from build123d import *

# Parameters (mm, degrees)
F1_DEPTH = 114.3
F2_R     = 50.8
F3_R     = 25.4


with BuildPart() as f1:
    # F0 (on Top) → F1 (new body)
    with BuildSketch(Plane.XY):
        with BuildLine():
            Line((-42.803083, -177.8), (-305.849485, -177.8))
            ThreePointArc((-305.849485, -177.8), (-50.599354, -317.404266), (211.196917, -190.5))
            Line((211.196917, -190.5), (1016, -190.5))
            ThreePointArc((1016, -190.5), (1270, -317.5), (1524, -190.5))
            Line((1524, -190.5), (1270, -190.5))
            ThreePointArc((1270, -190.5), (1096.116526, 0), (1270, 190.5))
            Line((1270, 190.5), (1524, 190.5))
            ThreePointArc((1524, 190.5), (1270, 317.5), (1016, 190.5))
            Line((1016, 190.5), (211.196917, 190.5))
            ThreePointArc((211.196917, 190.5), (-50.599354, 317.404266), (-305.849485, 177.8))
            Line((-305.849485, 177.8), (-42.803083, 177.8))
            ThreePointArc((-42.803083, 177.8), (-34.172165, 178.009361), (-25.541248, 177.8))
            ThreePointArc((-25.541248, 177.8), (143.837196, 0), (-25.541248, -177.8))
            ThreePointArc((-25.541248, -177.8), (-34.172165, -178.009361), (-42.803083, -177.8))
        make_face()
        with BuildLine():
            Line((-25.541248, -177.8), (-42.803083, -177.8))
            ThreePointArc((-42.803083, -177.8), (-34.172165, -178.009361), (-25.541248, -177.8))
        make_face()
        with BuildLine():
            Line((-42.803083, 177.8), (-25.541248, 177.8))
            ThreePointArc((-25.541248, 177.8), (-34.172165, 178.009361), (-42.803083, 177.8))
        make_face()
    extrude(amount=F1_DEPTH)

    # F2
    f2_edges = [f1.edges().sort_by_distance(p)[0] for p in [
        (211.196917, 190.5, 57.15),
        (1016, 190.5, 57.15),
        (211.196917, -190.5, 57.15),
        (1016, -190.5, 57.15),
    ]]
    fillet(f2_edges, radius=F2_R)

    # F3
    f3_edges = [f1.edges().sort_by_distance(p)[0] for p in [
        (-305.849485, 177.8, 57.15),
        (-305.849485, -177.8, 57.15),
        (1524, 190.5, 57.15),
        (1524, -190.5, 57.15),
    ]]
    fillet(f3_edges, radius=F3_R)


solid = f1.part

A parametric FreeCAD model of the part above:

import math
import FreeCAD as App
import Part
import Sketcher
from FreeCAD import Vector
Q = App.Units.Quantity


def edges_at(feature, points):
    """Names of the edges that pass closest to the given points."""
    edges = feature.Shape.Edges
    near = lambda p: min(range(len(edges)), key=lambda i: edges[i].distToShape(Part.Vertex(*p))[0])
    return sorted({f"Edge{near(p) + 1}" for p in points})

doc = App.newDocument("Part")
body = doc.addObject("PartDesign::Body", "Body")

sketch1 = doc.addObject("Sketcher::SketchObject", "Sketch")
body.addObject(sketch1)
sketch1.AttachmentSupport = (doc.XY_Plane, [""])
sketch1.MapMode = "FlatFace"
sketch1.addGeometry([
    Part.ArcOfCircle(Part.Circle(Vector(-43, 0, 0), Vector(0, 0, 1), 317), math.radians(-146), math.radians(-37)),
    Part.LineSegment(Vector(211, -190, 0), Vector(1016, -190, 0)),
    Part.ArcOfCircle(Part.Circle(Vector(1270, 0, 0), Vector(0, 0, 1), 318), math.radians(-143), math.radians(-37)),
    Part.LineSegment(Vector(1524, -190, 0), Vector(1270, -190, 0)),
    Part.ArcOfCircle(Part.Circle(Vector(1287, 0, 0), Vector(0, 0, 1), 191), math.radians(95), math.radians(265)),
    Part.LineSegment(Vector(1270, 190, 0), Vector(1524, 190, 0)),
    Part.ArcOfCircle(Part.Circle(Vector(1270, 0, 0), Vector(0, 0, 1), 318), math.radians(37), math.radians(143)),
    Part.LineSegment(Vector(1016, 190, 0), Vector(211, 190, 0)),
    Part.ArcOfCircle(Part.Circle(Vector(-43, 0, 0), Vector(0, 0, 1), 317), math.radians(37), math.radians(146)),
    Part.LineSegment(Vector(-306, 178, 0), Vector(-26, 178, 0)),
    Part.ArcOfCircle(Part.Circle(Vector(-34, 0, 0), Vector(0, 0, 1), 178), math.radians(-87), math.radians(87)),
    Part.LineSegment(Vector(-26, -178, 0), Vector(-306, -178, 0)),
], False)
sketch1.addConstraint([
    Sketcher.Constraint("Coincident", 0, 2, 1, 1),
    Sketcher.Constraint("Coincident", 1, 2, 2, 1),
    Sketcher.Constraint("Coincident", 2, 2, 3, 1),
    Sketcher.Constraint("Coincident", 3, 2, 4, 2),
    Sketcher.Constraint("Coincident", 4, 1, 5, 1),
    Sketcher.Constraint("Coincident", 5, 2, 6, 1),
    Sketcher.Constraint("Coincident", 6, 2, 7, 1),
    Sketcher.Constraint("Coincident", 7, 2, 8, 1),
    Sketcher.Constraint("Coincident", 8, 2, 9, 1),
    Sketcher.Constraint("Coincident", 9, 2, 10, 2),
    Sketcher.Constraint("Coincident", 10, 1, 11, 1),
    Sketcher.Constraint("Coincident", 11, 2, 0, 1),
    Sketcher.Constraint("Horizontal", 1),
    Sketcher.Constraint("Horizontal", 3),
    Sketcher.Constraint("Horizontal", 5),
    Sketcher.Constraint("Horizontal", 7),
    Sketcher.Constraint("Horizontal", 9),
    Sketcher.Constraint("Horizontal", 11),
    Sketcher.Constraint("Coincident", 6, 3, 2, 3),
    Sketcher.Constraint("Coincident", 8, 3, 0, 3),
    Sketcher.Constraint("Equal", 0, 2),
    Sketcher.Constraint("Equal", 2, 6),
    Sketcher.Constraint("Equal", 6, 8),
    Sketcher.Constraint("Symmetric", 3, 2, 4, 1, -1),
    Sketcher.Constraint("Symmetric", 1, 2, 6, 2, -1),
    Sketcher.Constraint("Symmetric", 9, 2, 10, 1, -1),
    Sketcher.Constraint("PointOnObject", 0, 3, -1),
    Sketcher.Constraint("Horizontal", 1, 2, 2, 2),
    Sketcher.Constraint("Vertical", 6, 3, 3, 2),
    Sketcher.Constraint("Radius", 0, Q("12.5 in")),
    Sketcher.Constraint("DistanceX", 3, 2, 3, 1, Q("10 in")),
    Sketcher.Constraint("DistanceX", -1, 1, 2, 3, Q("50 in")),
    Sketcher.Constraint("DistanceY", -1, 1, 9, 2, Q("7 in")),
    Sketcher.Constraint("Radius", 4, Q("191.293948 mm")),
    Sketcher.Constraint("Radius", 10, Q("178.009361 mm")),
    Sketcher.Constraint("DistanceX", 0, 3, 10, 3, Q("0.3397999 in")),
    Sketcher.Constraint("DistanceX", 1, 1, 1, 2, Q("804.803083 mm")),
])
pad1 = doc.addObject("PartDesign::Pad", "Pad")
body.addObject(pad1)
pad1.Profile = sketch1
pad1.Length = Q("4.5 in")
doc.recompute()

fillet = doc.addObject("PartDesign::Fillet", "Fillet")
body.addObject(fillet)
fillet.Base = (pad1, edges_at(pad1, [
    (211.197, 190.5, 57.15),
    (1016, 190.5, 57.15),
    (211.197, -190.5, 57.15),
    (1016, -190.5, 57.15),
]))
fillet.Radius = Q("2 in")
doc.recompute()

fillet2 = doc.addObject("PartDesign::Fillet", "Fillet001")
body.addObject(fillet2)
fillet2.Base = (fillet, edges_at(fillet, [
    (-305.849, 177.8, 57.15),
    (-305.849, -177.8, 57.15),
    (1524, 190.5, 57.15),
    (1524, -190.5, 57.15),
]))
fillet2.Radius = Q("1 in")

doc.recompute()
